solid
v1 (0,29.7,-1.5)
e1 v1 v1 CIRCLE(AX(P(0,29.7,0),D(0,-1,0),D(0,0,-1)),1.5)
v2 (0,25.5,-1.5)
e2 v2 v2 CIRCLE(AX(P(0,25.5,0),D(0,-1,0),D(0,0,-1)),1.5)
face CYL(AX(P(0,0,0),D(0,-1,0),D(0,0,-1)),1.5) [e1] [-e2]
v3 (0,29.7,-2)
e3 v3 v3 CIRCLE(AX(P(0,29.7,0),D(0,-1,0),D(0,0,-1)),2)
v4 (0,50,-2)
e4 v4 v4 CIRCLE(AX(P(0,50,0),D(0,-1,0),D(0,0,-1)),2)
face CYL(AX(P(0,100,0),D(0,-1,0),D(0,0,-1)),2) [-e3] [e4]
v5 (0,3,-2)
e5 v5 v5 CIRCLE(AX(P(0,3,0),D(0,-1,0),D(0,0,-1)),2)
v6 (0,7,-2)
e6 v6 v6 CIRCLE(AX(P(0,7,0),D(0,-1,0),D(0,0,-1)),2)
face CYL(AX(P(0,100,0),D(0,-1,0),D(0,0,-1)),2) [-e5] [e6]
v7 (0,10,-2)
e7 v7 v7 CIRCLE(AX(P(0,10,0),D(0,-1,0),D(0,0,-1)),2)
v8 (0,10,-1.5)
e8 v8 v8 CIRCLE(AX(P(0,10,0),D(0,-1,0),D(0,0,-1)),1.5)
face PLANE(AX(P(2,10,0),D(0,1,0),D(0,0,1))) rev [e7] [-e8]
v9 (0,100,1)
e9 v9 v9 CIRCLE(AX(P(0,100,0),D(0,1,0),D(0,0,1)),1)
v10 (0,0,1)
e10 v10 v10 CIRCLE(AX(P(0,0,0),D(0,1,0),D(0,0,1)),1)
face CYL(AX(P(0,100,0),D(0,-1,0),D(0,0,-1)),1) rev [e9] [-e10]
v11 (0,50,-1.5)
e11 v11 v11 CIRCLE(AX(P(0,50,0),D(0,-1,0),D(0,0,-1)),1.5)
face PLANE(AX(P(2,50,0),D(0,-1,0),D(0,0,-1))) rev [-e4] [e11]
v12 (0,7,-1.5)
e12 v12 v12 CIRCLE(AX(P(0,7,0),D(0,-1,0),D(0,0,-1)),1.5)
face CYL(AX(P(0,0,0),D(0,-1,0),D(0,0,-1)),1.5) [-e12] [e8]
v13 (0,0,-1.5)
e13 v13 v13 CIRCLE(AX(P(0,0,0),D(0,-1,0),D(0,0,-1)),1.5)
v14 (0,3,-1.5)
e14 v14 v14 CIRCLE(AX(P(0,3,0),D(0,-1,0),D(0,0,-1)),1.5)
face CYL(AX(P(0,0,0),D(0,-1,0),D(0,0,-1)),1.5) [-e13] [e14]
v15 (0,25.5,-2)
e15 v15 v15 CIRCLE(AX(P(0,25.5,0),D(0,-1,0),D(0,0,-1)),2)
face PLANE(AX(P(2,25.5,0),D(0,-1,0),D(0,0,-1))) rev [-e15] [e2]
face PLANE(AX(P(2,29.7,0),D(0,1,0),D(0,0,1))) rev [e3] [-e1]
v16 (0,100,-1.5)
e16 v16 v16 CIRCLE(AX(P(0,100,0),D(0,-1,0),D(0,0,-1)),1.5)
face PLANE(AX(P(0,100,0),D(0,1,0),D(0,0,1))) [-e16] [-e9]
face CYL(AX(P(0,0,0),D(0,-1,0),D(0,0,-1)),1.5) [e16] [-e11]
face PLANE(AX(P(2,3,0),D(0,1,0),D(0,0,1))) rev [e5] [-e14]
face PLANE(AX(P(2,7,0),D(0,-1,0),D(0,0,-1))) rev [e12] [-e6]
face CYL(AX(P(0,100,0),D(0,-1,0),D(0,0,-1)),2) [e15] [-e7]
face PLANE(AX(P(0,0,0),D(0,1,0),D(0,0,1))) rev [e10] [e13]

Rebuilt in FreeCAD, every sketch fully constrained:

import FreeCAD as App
import Part
import Sketcher
from FreeCAD import Vector


def add_polygon(sketch, points):
    """Adds a closed chain of lines whose ends are joined by coincident constraints."""
    first, n = sketch.GeometryCount, len(points)
    for a, b in zip(points, points[1:] + points[:1]):
        sketch.addGeometry(Part.LineSegment(App.Vector(*a, 0), App.Vector(*b, 0)), False)
    for i in range(n):
        sketch.addConstraint(Sketcher.Constraint("Coincident", first + i, 2, first + (i + 1) % n, 1))

doc = App.newDocument("Part")
body = doc.addObject("PartDesign::Body", "Body")

# Sketch on XZ plane
sketch1 = doc.addObject("Sketcher::SketchObject", "Sketch")
body.addObject(sketch1)
sketch1.AttachmentSupport = (doc.XZ_Plane, [""])
sketch1.MapMode = "FlatFace"
sketch1.addGeometry([
    Part.Circle(Vector(0, 0, 0), Vector(0, 0, 1), 2),
    Part.Circle(Vector(0, 0, 0), Vector(0, 0, 1), 1),
], False)
sketch1.addConstraint([
    Sketcher.Constraint("Coincident", 0, 3, -1, 1),
    Sketcher.Constraint("Coincident", 1, 3, -1, 1),
    Sketcher.Constraint("Diameter", 0, 4.0),
    Sketcher.Constraint("Diameter", 1, 2.0),
])
pad1 = doc.addObject("PartDesign::Pad", "Pad")
body.addObject(pad1)
pad1.Profile = sketch1
pad1.Length = 100
pad1.Reversed = True

# Sketch on XY plane
sketch2 = doc.addObject("Sketcher::SketchObject", "Sketch001")
body.addObject(sketch2)
sketch2.AttachmentSupport = (doc.XY_Plane, [""])
sketch2.MapMode = "FlatFace"
add_polygon(sketch2, [(1.5, 3), (1.5, 0), (2, 0), (2, 3)])  # lines 0-3
add_polygon(sketch2, [(1.5, 10), (1.5, 7), (2, 7), (2, 10)])  # lines 4-7
sketch2.addConstraint([
    Sketcher.Constraint("Vertical", 0),
    Sketcher.Constraint("Horizontal", 1),
    Sketcher.Constraint("Vertical", 2),
    Sketcher.Constraint("Horizontal", 3),
    Sketcher.Constraint("Vertical", 4),
    Sketcher.Constraint("Horizontal", 5),
    Sketcher.Constraint("Vertical", 6),
    Sketcher.Constraint("Horizontal", 7),
    Sketcher.Constraint("PointOnObject", 0, 2, -1),
    Sketcher.Constraint("Vertical", 3, 2, 4, 2),
    Sketcher.Constraint("Vertical", 2, 2, 5, 2),
    Sketcher.Constraint("Equal", 2, 4),
    Sketcher.Constraint("DistanceY", 0, 2, 0, 1, 3.0),
    Sketcher.Constraint("DistanceX", 1, 1, 1, 2, 0.5),
    Sketcher.Constraint("DistanceX", -1, 1, 1, 2, 2.0),
    Sketcher.Constraint("DistanceY", -1, 1, 4, 2, 7.0),
])
groove = doc.addObject("PartDesign::Groove", "Groove")
body.addObject(groove)
groove.Profile = sketch2
groove.ReferenceAxis = (sketch2, ["V_Axis"])
groove.Angle = 360

# Sketch on XY plane
sketch3 = doc.addObject("Sketcher::SketchObject", "Sketch002")
body.addObject(sketch3)
sketch3.AttachmentSupport = (doc.XY_Plane, [""])
sketch3.MapMode = "FlatFace"
add_polygon(sketch3, [(1.5, 100), (1.5, 50), (2, 50), (2, 100)])  # lines 0-3
sketch3.addConstraint([
    Sketcher.Constraint("Vertical", 0),
    Sketcher.Constraint("Horizontal", 1),
    Sketcher.Constraint("Vertical", 2),
    Sketcher.Constraint("Horizontal", 3),
    Sketcher.Constraint("DistanceY", 0, 2, 0, 1, 50.0),
    Sketcher.Constraint("DistanceX", 1, 1, 1, 2, 0.5),
    Sketcher.Constraint("DistanceY", -1, 1, 0, 2, 50.0),
    Sketcher.Constraint("DistanceX", -1, 1, 1, 2, 2.0),
])
groove2 = doc.addObject("PartDesign::Groove", "Groove001")
body.addObject(groove2)
groove2.Profile = sketch3
groove2.ReferenceAxis = (sketch3, ["V_Axis"])
groove2.Angle = 360

# Sketch on XY plane
sketch4 = doc.addObject("Sketcher::SketchObject", "Sketch003")
body.addObject(sketch4)
sketch4.AttachmentSupport = (doc.XY_Plane, [""])
sketch4.MapMode = "FlatFace"
add_polygon(sketch4, [(1.5, 29.7), (1.5, 25.5), (2, 25.5), (2, 29.7)])  # lines 0-3
sketch4.addConstraint([
    Sketcher.Constraint("Vertical", 0),
    Sketcher.Constraint("Horizontal", 1),
    Sketcher.Constraint("Vertical", 2),
    Sketcher.Constraint("Horizontal", 3),
    Sketcher.Constraint("DistanceX", 1, 1, 1, 2, 0.5),
    Sketcher.Constraint("DistanceY", 0, 2, 0, 1, 4.2),
    Sketcher.Constraint("DistanceX", -1, 1, 1, 2, 2.0),
    Sketcher.Constraint("DistanceY", -1, 1, 0, 2, 25.5),
])
groove3 = doc.addObject("PartDesign::Groove", "Groove002")
body.addObject(groove3)
groove3.Profile = sketch4
groove3.ReferenceAxis = (sketch4, ["V_Axis"])
groove3.Angle = 360

doc.recompute()
